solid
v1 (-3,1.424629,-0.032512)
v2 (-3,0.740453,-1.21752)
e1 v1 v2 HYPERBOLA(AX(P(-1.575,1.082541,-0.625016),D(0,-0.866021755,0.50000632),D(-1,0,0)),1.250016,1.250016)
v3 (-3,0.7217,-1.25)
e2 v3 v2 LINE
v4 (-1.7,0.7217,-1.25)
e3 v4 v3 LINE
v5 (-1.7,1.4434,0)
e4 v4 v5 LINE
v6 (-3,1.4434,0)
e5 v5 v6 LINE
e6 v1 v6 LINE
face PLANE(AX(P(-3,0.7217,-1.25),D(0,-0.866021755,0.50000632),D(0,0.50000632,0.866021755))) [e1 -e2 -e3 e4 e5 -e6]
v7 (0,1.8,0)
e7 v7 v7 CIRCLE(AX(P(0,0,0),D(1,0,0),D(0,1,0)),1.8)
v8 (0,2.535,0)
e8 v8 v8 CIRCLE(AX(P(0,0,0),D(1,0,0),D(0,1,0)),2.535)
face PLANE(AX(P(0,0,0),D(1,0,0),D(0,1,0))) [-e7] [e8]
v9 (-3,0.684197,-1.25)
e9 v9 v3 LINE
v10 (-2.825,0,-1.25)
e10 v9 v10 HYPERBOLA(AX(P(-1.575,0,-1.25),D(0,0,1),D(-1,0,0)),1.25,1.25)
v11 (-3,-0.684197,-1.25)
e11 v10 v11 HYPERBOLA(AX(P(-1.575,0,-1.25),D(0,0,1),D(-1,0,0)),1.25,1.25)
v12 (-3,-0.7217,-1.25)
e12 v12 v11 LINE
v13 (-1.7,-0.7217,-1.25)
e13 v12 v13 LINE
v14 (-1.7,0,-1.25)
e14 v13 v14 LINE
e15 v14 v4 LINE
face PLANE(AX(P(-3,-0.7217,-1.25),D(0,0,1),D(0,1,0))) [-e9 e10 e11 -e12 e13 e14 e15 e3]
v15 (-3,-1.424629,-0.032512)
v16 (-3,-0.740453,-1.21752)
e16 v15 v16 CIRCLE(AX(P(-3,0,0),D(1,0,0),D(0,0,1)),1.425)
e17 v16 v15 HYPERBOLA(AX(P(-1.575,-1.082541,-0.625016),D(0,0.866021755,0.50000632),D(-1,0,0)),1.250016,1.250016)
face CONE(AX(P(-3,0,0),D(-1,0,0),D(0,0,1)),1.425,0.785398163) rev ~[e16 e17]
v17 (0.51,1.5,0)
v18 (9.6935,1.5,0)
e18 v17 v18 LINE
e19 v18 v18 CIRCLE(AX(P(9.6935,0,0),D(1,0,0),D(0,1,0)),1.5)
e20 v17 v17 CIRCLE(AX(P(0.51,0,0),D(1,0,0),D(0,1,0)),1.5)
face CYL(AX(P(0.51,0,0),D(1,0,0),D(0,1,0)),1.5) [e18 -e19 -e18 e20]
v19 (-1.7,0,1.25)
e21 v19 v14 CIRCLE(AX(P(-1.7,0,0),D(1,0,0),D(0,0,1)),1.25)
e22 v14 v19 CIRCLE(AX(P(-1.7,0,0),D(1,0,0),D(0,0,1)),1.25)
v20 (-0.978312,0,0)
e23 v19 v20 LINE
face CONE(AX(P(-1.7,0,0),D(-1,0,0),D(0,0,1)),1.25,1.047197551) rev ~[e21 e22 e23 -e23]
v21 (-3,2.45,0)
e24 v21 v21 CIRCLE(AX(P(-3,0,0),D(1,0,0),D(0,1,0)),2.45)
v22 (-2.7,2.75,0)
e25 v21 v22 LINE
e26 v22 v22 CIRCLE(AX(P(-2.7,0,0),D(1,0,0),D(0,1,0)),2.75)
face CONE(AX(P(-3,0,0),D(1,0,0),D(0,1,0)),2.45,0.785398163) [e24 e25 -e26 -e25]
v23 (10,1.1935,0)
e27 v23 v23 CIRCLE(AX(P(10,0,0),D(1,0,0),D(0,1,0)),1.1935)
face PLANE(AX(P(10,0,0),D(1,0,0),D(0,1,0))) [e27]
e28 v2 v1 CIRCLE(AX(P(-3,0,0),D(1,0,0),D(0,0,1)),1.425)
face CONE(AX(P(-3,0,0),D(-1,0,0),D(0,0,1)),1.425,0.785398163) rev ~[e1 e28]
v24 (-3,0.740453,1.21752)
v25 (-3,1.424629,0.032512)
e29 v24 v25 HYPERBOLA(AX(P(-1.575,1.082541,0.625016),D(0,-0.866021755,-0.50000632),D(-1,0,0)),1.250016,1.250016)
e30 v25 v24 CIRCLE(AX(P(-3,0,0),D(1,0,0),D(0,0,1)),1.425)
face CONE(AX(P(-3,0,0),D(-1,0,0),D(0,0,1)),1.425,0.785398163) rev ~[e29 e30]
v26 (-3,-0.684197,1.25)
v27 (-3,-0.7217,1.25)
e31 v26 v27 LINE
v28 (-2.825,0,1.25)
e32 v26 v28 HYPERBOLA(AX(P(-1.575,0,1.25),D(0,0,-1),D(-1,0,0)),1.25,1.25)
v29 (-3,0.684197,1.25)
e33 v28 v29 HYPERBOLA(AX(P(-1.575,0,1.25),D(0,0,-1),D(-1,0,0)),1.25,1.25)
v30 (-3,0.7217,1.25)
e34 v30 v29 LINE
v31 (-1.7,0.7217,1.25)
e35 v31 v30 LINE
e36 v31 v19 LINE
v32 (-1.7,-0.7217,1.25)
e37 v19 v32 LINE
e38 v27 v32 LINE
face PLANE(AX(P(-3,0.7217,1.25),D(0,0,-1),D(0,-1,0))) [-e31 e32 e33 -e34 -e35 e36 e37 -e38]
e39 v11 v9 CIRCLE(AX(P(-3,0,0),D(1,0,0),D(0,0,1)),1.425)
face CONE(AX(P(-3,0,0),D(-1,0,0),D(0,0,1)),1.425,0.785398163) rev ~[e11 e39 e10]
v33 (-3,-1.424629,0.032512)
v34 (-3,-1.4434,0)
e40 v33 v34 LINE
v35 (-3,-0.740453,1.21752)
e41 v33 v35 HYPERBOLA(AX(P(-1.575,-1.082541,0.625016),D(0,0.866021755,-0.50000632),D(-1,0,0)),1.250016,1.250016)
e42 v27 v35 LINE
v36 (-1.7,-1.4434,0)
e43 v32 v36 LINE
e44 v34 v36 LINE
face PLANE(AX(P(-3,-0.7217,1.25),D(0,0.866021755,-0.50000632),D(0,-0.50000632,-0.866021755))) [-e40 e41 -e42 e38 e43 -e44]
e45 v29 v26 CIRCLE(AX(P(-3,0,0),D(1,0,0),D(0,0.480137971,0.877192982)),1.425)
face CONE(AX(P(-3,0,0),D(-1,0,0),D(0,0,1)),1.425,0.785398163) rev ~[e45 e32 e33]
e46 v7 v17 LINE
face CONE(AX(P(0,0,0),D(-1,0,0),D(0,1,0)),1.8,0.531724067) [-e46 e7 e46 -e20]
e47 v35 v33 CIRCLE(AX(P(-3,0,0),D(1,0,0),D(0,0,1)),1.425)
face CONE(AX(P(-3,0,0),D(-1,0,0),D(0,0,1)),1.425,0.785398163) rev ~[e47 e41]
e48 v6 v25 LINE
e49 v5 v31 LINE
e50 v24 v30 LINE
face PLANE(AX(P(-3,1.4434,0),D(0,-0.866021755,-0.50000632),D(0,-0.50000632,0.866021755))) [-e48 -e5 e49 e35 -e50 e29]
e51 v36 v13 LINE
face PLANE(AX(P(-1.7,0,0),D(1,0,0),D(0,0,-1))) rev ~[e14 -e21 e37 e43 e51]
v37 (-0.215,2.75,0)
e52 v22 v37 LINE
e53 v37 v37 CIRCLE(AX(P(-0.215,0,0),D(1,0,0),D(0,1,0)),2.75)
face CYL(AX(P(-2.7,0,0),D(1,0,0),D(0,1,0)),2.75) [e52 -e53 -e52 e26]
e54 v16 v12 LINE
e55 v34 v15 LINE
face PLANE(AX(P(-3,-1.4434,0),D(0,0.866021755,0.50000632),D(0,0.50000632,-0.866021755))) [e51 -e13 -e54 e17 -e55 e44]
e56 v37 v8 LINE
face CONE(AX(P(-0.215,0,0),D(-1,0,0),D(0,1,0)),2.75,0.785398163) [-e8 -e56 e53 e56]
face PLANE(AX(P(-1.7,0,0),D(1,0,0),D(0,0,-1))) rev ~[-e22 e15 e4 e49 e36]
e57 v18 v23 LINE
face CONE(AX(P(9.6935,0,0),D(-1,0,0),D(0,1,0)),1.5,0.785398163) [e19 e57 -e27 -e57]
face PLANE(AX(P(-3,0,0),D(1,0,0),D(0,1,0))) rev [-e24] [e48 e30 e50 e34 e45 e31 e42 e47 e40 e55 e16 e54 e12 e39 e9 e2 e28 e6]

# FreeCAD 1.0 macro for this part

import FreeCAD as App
import Part
import Sketcher
Q = App.Units.Quantity

doc = App.newDocument("Part")
params = doc.addObject("Spreadsheet::Sheet", "Params")
for row, (alias, value) in enumerate([
    ("sketch1_width", "13 mm"),
    ("sketch1_width2", "3 mm"),
    ("sketch1_height", "0.95 mm"),
    ("sketch1_height2", "2.75 mm"),
    ("revolution_angle", "360 deg"),
    ("sketch2_width", "3 mm"),
    ("sketch2_height", "0.85 mm"),
    ("groove_angle", "360 deg"),
    ("sketch3_diameter", "2.5 mm"),
    ("hole_diameter", "2.5 mm"),
    ("hole_depth", "1.3 mm"),
    ("hole_csink_diameter", "2.85 mm"),
    ("pocket1_length", "2.6 mm"),
], start=1):
    params.set(f"A{row}", alias)
    params.set(f"B{row}", "=" + value)
    params.setAlias(f"B{row}", alias)

body = doc.addObject("PartDesign::Body", "Body")

# Sketch on XY plane
sketch1 = doc.addObject("Sketcher::SketchObject", "Sketch")
body.addObject(sketch1)
sketch1.AttachmentSupport = (doc.XY_Plane, [""])
sketch1.MapMode = "FlatFace"
sketch1.addGeometry([
    Part.LineSegment(App.Vector(-3, 0, 0), App.Vector(10, 0, 0)),  # 0
    Part.LineSegment(App.Vector(10, 0, 0), App.Vector(10, 1.19, 0)),  # 1
    Part.LineSegment(App.Vector(10, 1.19, 0), App.Vector(9.69, 1.5, 0)),  # 2
    Part.LineSegment(App.Vector(9.69, 1.5, 0), App.Vector(0.51, 1.5, 0)),  # 3
    Part.LineSegment(App.Vector(0.51, 1.5, 0), App.Vector(0, 1.8, 0)),  # 4
    Part.LineSegment(App.Vector(0, 1.8, 0), App.Vector(0, 2.75, 0)),  # 5
    Part.LineSegment(App.Vector(0, 2.75, 0), App.Vector(-3, 2.75, 0)),  # 6
    Part.LineSegment(App.Vector(-3, 2.75, 0), App.Vector(-3, 0, 0)),  # 7
], False)
sketch1.addConstraint([
    Sketcher.Constraint("Coincident", 0, 2, 1, 1),
    Sketcher.Constraint("Coincident", 1, 2, 2, 1),
    Sketcher.Constraint("Coincident", 2, 2, 3, 1),
    Sketcher.Constraint("Coincident", 3, 2, 4, 1),
    Sketcher.Constraint("Coincident", 4, 2, 5, 1),
    Sketcher.Constraint("Coincident", 5, 2, 6, 1),
    Sketcher.Constraint("Coincident", 6, 2, 7, 1),
    Sketcher.Constraint("Coincident", 7, 2, 0, 1),
    Sketcher.Constraint("Horizontal", 0),
    Sketcher.Constraint("Vertical", 1),
    Sketcher.Constraint("Horizontal", 3),
    Sketcher.Constraint("Vertical", 5),
    Sketcher.Constraint("Horizontal", 6),
    Sketcher.Constraint("Vertical", 7),
    Sketcher.Constraint("PointOnObject", 0, 2, -1),
    Sketcher.Constraint("PointOnObject", 4, 2, -2),
    Sketcher.Constraint("DistanceX", 0, 1, 0, 2, Q("13 mm")),
    Sketcher.Constraint("DistanceX", 6, 2, 6, 1, Q("3 mm")),
    Sketcher.Constraint("Angle", 2, Q("135 deg")),
    Sketcher.Constraint("DistanceY", 5, 1, 5, 2, Q("0.95 mm")),
    Sketcher.Constraint("DistanceY", 7, 2, 7, 1, Q("2.75 mm")),
    Sketcher.Constraint("DistanceY", -1, 1, 2, 2, Q("1.5 mm")),
    Sketcher.Constraint("DistanceX", -1, 1, 3, 2, Q("0.51 mm")),
    Sketcher.Constraint("DistanceX", 3, 2, 3, 1, Q("9.1835 mm")),
])
sketch1.setExpression("Constraints[16]", "Params.sketch1_width")
sketch1.setExpression("Constraints[17]", "Params.sketch1_width2")
sketch1.setExpression("Constraints[19]", "Params.sketch1_height")
sketch1.setExpression("Constraints[20]", "Params.sketch1_height2")
revolution = doc.addObject("PartDesign::Revolution", "Revolution")
body.addObject(revolution)
revolution.Profile = sketch1
revolution.ReferenceAxis = (sketch1, ["H_Axis"])
revolution.setExpression("Angle", "Params.revolution_angle")

# Sketch on XY plane
sketch2 = doc.addObject("Sketcher::SketchObject", "Sketch001")
body.addObject(sketch2)
sketch2.AttachmentSupport = (doc.XY_Plane, [""])
sketch2.MapMode = "FlatFace"
sketch2.addGeometry([
    Part.LineSegment(App.Vector(0, 3.3, 0), App.Vector(-3, 3.3, 0)),  # 0
    Part.LineSegment(App.Vector(-3, 3.3, 0), App.Vector(-3, 2.45, 0)),  # 1
    Part.LineSegment(App.Vector(-3, 2.45, 0), App.Vector(-2.7, 2.75, 0)),  # 2
    Part.LineSegment(App.Vector(-2.7, 2.75, 0), App.Vector(-0.21, 2.75, 0)),  # 3
    Part.LineSegment(App.Vector(-0.21, 2.75, 0), App.Vector(0, 2.54, 0)),  # 4
    Part.LineSegment(App.Vector(0, 2.54, 0), App.Vector(0, 3.3, 0)),  # 5
], False)
sketch2.addConstraint([
    Sketcher.Constraint("Coincident", 0, 2, 1, 1),
    Sketcher.Constraint("Coincident", 1, 2, 2, 1),
    Sketcher.Constraint("Coincident", 2, 2, 3, 1),
    Sketcher.Constraint("Coincident", 3, 2, 4, 1),
    Sketcher.Constraint("Coincident", 4, 2, 5, 1),
    Sketcher.Constraint("Coincident", 5, 2, 0, 1),
    Sketcher.Constraint("Horizontal", 0),
    Sketcher.Constraint("Vertical", 1),
    Sketcher.Constraint("Horizontal", 3),
    Sketcher.Constraint("Vertical", 5),
    Sketcher.Constraint("PointOnObject", 4, 2, -2),
    Sketcher.Constraint("Perpendicular", 2, 4),
    Sketcher.Constraint("DistanceX", 0, 2, 0, 1, Q("3 mm")),
    Sketcher.Constraint("Angle", 2, Q("45 deg")),
    Sketcher.Constraint("DistanceY", 1, 2, 1, 1, Q("0.85 mm")),
    Sketcher.Constraint("DistanceY", -1, 1, 0, 2, Q("3.3 mm")),
    Sketcher.Constraint("DistanceX", 2, 2, -1, 1, Q("2.7 mm")),
    Sketcher.Constraint("DistanceX", 3, 1, 3, 2, Q("2.485 mm")),
])
sketch2.setExpression("Constraints[12]", "Params.sketch2_width")
sketch2.setExpression("Constraints[14]", "Params.sketch2_height")
groove = doc.addObject("PartDesign::Groove", "Groove")
body.addObject(groove)
groove.Profile = sketch2
groove.ReferenceAxis = (sketch2, ["H_Axis"])
groove.setExpression("Angle", "Params.groove_angle")

# Sketch on YZ plane
sketch3 = doc.addObject("Sketcher::SketchObject", "Sketch002")
body.addObject(sketch3)
sketch3.AttachmentSupport = (doc.YZ_Plane, [""])
sketch3.MapMode = "FlatFace"
sketch3.AttachmentOffset = App.Placement(App.Vector(0, 0, -3), App.Rotation())
sketch3.addGeometry(Part.Circle(App.Vector(0, 0, 0), App.Vector(0, 0, 1), 1.2), False)
sketch3.addConstraint([
    Sketcher.Constraint("Coincident", 0, 3, -1, 1),
    Sketcher.Constraint("Diameter", 0, Q("2.5 mm")),
])
sketch3.setExpression("Constraints[1]", "Params.sketch3_diameter")
doc.recompute()
hole = doc.addObject("PartDesign::Hole", "Hole")
body.addObject(hole)
hole.Profile = sketch3
hole.ThreadType = "None"
hole.setExpression("Diameter", "Params.hole_diameter")
hole.DepthType = "Dimension"
hole.setExpression("Depth", "Params.hole_depth")
hole.DrillPoint = "Angled"
hole.DrillPointAngle = 120
hole.HoleCutType = "Countersink"
hole.setExpression("HoleCutDiameter", "Params.hole_csink_diameter")
hole.HoleCutCountersinkAngle = 90
hole.Reversed = True

# Sketch on YZ plane
sketch4 = doc.addObject("Sketcher::SketchObject", "Sketch003")
body.addObject(sketch4)
sketch4.AttachmentSupport = (doc.YZ_Plane, [""])
sketch4.MapMode = "FlatFace"
sketch4.AttachmentOffset = App.Placement(App.Vector(0, 0, -3), App.Rotation())
sketch4.addGeometry([
    Part.LineSegment(App.Vector(0.7, 1.2, 0), App.Vector(-0.7, 1.2, 0)),  # 0
    Part.LineSegment(App.Vector(-0.7, 1.2, 0), App.Vector(-1.4, 0, 0)),  # 1
    Part.LineSegment(App.Vector(-1.4, 0, 0), App.Vector(-0.7, -1.2, 0)),  # 2
    Part.LineSegment(App.Vector(-0.7, -1.2, 0), App.Vector(0.7, -1.2, 0)),  # 3
    Part.LineSegment(App.Vector(0.7, -1.2, 0), App.Vector(1.4, 0, 0)),  # 4
    Part.LineSegment(App.Vector(1.4, 0, 0), App.Vector(0.7, 1.2, 0)),  # 5
], False)
sketch4.addConstraint([
    Sketcher.Constraint("Coincident", 0, 2, 1, 1),
    Sketcher.Constraint("Coincident", 1, 2, 2, 1),
    Sketcher.Constraint("Coincident", 2, 2, 3, 1),
    Sketcher.Constraint("Coincident", 3, 2, 4, 1),
    Sketcher.Constraint("Coincident", 4, 2, 5, 1),
    Sketcher.Constraint("Coincident", 5, 2, 0, 1),
    Sketcher.Constraint("Horizontal", 0),
    Sketcher.Constraint("Horizontal", 3),
    Sketcher.Constraint("Symmetric", 0, 2, 3, 2, -1, 1),
    Sketcher.Constraint("Symmetric", 1, 2, 4, 2, -1, 1),
    Sketcher.Constraint("PointOnObject", 1, 2, -1),
    Sketcher.Constraint("Parallel", 2, 5),
    Sketcher.Constraint("Vertical", 0, 2, 2, 2),
    Sketcher.Constraint("Angle", 1, Q("-120.0004 deg")),
    Sketcher.Constraint("DistanceY", 2, 2, 0, 2, Q("2.5 mm")),
    Sketcher.Constraint("DistanceX", 0, 2, 0, 1, Q("1.4434 mm")),
])
pocket1 = doc.addObject("PartDesign::Pocket", "Pocket")
body.addObject(pocket1)
pocket1.Profile = sketch4
pocket1.setExpression("Length", "Params.pocket1_length")
pocket1.Midplane = True

doc.recompute()
